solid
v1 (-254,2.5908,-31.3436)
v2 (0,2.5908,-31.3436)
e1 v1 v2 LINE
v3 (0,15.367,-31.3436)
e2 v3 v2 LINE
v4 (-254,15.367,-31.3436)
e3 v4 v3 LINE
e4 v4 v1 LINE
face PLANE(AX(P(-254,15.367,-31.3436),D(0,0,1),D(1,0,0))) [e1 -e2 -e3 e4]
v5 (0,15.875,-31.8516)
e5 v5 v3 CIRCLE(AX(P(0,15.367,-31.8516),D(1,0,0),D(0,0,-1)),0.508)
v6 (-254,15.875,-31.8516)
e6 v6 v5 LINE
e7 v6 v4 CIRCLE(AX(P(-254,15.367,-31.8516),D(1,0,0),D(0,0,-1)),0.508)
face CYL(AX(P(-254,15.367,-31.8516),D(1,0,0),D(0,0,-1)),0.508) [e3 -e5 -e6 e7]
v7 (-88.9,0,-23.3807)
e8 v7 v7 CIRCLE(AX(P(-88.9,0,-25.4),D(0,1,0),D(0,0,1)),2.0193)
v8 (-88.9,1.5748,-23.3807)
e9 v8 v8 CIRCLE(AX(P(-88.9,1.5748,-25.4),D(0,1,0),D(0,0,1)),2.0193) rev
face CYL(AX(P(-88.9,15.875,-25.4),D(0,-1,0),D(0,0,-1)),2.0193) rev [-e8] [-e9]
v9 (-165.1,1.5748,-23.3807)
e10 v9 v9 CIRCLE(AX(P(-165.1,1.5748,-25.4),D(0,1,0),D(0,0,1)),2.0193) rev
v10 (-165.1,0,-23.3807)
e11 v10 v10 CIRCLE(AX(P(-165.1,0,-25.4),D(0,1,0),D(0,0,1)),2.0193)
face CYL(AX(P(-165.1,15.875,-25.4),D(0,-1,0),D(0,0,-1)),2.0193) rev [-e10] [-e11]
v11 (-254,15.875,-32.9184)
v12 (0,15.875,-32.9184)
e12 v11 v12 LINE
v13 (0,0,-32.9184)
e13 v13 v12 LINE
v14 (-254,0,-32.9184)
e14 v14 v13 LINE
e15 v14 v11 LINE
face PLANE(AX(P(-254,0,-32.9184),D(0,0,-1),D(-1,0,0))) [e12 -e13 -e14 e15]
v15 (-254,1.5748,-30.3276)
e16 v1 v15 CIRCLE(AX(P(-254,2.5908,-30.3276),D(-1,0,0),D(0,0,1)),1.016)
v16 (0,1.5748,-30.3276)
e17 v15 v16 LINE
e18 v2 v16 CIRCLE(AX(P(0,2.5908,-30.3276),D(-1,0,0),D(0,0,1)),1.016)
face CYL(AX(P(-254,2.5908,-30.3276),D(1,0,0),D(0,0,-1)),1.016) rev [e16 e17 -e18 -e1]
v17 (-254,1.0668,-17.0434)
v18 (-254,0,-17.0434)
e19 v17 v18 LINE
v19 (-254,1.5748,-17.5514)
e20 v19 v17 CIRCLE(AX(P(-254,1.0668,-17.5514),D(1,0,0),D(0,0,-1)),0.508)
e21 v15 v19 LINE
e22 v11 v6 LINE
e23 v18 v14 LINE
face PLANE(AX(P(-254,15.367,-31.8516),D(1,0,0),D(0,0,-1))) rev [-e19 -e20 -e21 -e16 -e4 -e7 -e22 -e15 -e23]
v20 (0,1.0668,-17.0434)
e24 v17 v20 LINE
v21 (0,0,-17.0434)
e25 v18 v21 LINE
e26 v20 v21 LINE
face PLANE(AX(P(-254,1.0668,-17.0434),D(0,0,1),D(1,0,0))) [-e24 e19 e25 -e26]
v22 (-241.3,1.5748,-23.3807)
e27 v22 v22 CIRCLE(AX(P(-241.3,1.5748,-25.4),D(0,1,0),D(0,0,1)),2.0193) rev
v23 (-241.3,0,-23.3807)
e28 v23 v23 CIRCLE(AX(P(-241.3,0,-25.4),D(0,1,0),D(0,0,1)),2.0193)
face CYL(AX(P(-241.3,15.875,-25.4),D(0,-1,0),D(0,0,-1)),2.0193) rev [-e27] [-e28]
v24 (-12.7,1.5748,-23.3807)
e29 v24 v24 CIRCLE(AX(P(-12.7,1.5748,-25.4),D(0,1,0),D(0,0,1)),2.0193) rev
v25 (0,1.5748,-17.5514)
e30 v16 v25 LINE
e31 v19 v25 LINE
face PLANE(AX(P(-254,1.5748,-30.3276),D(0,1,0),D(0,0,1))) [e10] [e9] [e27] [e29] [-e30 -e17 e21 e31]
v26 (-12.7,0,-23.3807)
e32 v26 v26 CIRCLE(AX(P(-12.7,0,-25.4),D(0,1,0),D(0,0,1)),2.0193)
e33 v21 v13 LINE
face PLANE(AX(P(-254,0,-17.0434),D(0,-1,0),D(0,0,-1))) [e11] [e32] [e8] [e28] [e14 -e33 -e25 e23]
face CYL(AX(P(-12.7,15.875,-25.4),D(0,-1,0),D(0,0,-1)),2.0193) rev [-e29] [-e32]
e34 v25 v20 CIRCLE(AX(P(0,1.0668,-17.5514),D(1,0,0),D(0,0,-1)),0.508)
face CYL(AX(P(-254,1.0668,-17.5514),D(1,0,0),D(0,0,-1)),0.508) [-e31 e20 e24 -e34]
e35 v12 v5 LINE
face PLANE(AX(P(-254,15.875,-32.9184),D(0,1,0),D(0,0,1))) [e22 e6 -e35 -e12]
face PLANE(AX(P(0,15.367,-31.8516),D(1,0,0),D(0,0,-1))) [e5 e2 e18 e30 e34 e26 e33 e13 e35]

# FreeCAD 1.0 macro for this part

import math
import FreeCAD as App
import Part
import Sketcher

V = App.Vector
Q = App.Units.Quantity

doc = App.newDocument("Part")
body = doc.addObject("PartDesign::Body", "Body")

sketch1 = body.newObject("Sketcher::SketchObject", "Sketch")
sketch1.AttachmentSupport = (doc.getObject("YZ_Plane"), [""])
sketch1.MapMode = "FlatFace"
sketch1.addGeometry(Part.LineSegment(V(0, -17.0434, 0), V(0, -32.9184, 0)), False)
sketch1.addGeometry(Part.LineSegment(V(0, -32.9184, 0), V(15.875, -32.9184, 0)), False)
sketch1.addGeometry(Part.LineSegment(V(15.875, -32.9184, 0), V(15.875, -31.8516, 0)), False)
sketch1.addGeometry(Part.ArcOfCircle(Part.Circle(V(15.367, -31.8516, 0), V(0, 0, 1), 0.508), math.radians(0), math.radians(90)), False)
sketch1.addGeometry(Part.LineSegment(V(15.367, -31.3436, 0), V(2.5908, -31.3436, 0)), False)
sketch1.addGeometry(Part.ArcOfCircle(Part.Circle(V(2.5908, -30.3276, 0), V(0, 0, 1), 1.016), math.radians(180), math.radians(270)), False)
sketch1.addGeometry(Part.LineSegment(V(1.5748, -30.3276, 0), V(1.5748, -17.5514, 0)), False)
sketch1.addGeometry(Part.ArcOfCircle(Part.Circle(V(1.0668, -17.5514, 0), V(0, 0, 1), 0.508), math.radians(0), math.radians(90)), False)
sketch1.addGeometry(Part.LineSegment(V(1.0668, -17.0434, 0), V(0, -17.0434, 0)), False)
sketch1.addConstraint(Sketcher.Constraint("Coincident", 0, 2, 1, 1))
sketch1.addConstraint(Sketcher.Constraint("Coincident", 1, 2, 2, 1))
sketch1.addConstraint(Sketcher.Constraint("Tangent", 2, 2, 3, 1))
sketch1.addConstraint(Sketcher.Constraint("Tangent", 3, 2, 4, 1))
sketch1.addConstraint(Sketcher.Constraint("Tangent", 4, 2, 5, 2))
sketch1.addConstraint(Sketcher.Constraint("Tangent", 5, 1, 6, 1))
sketch1.addConstraint(Sketcher.Constraint("Tangent", 6, 2, 7, 1))
sketch1.addConstraint(Sketcher.Constraint("Tangent", 7, 2, 8, 1))
sketch1.addConstraint(Sketcher.Constraint("Coincident", 8, 2, 0, 1))
sketch1.addConstraint(Sketcher.Constraint("Vertical", 0))
sketch1.addConstraint(Sketcher.Constraint("Horizontal", 1))
sketch1.addConstraint(Sketcher.Constraint("Vertical", 2))
sketch1.addConstraint(Sketcher.Constraint("Horizontal", 4))
sketch1.addConstraint(Sketcher.Constraint("Vertical", 6))
sketch1.addConstraint(Sketcher.Constraint("Horizontal", 8))
sketch1.addConstraint(Sketcher.Constraint("Equal", 3, 7))
sketch1.addConstraint(Sketcher.Constraint("PointOnObject", 0, 2, -2))
sketch1.addConstraint(Sketcher.Constraint("Equal", 1, 0))
sketch1.addConstraint(Sketcher.Constraint("Equal", 8, 2))
sketch1.addConstraint(Sketcher.Constraint("Radius", 3, Q("0.02 in")))
sketch1.addConstraint(Sketcher.Constraint("Radius", 5, Q("0.04 in")))
sketch1.addConstraint(Sketcher.Constraint("DistanceX", 1, 1, 1, 2, Q("0.625 in")))
sketch1.addConstraint(Sketcher.Constraint("DistanceX", 4, 2, 4, 1, Q("0.503 in")))
sketch1.addConstraint(Sketcher.Constraint("DistanceY", 3, 3, -1, 1, Q("1.254 in")))
pad1 = body.newObject("PartDesign::Pad", "Pad")
pad1.Profile = sketch1
pad1.Length = Q("10 in")
pad1.Reversed = True

sketch2 = body.newObject("Sketcher::SketchObject", "Sketch001")
sketch2.AttachmentSupport = (doc.getObject("XZ_Plane"), [""])
sketch2.MapMode = "FlatFace"
sketch2.addGeometry(Part.Circle(V(-12.7, -25.4, 0), V(0, 0, 1), 2.0193), False)
sketch2.addGeometry(Part.Circle(V(-88.9, -25.4, 0), V(0, 0, 1), 2.0193), False)
sketch2.addGeometry(Part.Circle(V(-165.1, -25.4, 0), V(0, 0, 1), 2.0193), False)
sketch2.addGeometry(Part.Circle(V(-241.3, -25.4, 0), V(0, 0, 1), 2.0193), False)
sketch2.addConstraint(Sketcher.Constraint("Equal", 0, 1))
sketch2.addConstraint(Sketcher.Constraint("Equal", 1, 2))
sketch2.addConstraint(Sketcher.Constraint("Equal", 2, 3))
sketch2.addConstraint(Sketcher.Constraint("Horizontal", 0, 3, 1, 3))
sketch2.addConstraint(Sketcher.Constraint("Horizontal", 1, 3, 2, 3))
sketch2.addConstraint(Sketcher.Constraint("Horizontal", 2, 3, 3, 3))
sketch2.addConstraint(Sketcher.Constraint("Diameter", 0, Q("0.159 in")))
sketch2.addConstraint(Sketcher.Constraint("DistanceY", 0, 3, -1, 1, Q("1 in")))
sketch2.addConstraint(Sketcher.Constraint("DistanceX", 1, 3, 0, 3, Q("3 in")))
sketch2.addConstraint(Sketcher.Constraint("DistanceX", 2, 3, 1, 3, Q("3 in")))
sketch2.addConstraint(Sketcher.Constraint("DistanceX", 3, 3, 2, 3, Q("3 in")))
sketch2.addConstraint(Sketcher.Constraint("DistanceX", 0, 3, -1, 1, Q("0.5 in")))
pocket1 = body.newObject("PartDesign::Pocket", "Pocket")
pocket1.Profile = sketch2
pocket1.Type = "ThroughAll"

doc.recompute()
